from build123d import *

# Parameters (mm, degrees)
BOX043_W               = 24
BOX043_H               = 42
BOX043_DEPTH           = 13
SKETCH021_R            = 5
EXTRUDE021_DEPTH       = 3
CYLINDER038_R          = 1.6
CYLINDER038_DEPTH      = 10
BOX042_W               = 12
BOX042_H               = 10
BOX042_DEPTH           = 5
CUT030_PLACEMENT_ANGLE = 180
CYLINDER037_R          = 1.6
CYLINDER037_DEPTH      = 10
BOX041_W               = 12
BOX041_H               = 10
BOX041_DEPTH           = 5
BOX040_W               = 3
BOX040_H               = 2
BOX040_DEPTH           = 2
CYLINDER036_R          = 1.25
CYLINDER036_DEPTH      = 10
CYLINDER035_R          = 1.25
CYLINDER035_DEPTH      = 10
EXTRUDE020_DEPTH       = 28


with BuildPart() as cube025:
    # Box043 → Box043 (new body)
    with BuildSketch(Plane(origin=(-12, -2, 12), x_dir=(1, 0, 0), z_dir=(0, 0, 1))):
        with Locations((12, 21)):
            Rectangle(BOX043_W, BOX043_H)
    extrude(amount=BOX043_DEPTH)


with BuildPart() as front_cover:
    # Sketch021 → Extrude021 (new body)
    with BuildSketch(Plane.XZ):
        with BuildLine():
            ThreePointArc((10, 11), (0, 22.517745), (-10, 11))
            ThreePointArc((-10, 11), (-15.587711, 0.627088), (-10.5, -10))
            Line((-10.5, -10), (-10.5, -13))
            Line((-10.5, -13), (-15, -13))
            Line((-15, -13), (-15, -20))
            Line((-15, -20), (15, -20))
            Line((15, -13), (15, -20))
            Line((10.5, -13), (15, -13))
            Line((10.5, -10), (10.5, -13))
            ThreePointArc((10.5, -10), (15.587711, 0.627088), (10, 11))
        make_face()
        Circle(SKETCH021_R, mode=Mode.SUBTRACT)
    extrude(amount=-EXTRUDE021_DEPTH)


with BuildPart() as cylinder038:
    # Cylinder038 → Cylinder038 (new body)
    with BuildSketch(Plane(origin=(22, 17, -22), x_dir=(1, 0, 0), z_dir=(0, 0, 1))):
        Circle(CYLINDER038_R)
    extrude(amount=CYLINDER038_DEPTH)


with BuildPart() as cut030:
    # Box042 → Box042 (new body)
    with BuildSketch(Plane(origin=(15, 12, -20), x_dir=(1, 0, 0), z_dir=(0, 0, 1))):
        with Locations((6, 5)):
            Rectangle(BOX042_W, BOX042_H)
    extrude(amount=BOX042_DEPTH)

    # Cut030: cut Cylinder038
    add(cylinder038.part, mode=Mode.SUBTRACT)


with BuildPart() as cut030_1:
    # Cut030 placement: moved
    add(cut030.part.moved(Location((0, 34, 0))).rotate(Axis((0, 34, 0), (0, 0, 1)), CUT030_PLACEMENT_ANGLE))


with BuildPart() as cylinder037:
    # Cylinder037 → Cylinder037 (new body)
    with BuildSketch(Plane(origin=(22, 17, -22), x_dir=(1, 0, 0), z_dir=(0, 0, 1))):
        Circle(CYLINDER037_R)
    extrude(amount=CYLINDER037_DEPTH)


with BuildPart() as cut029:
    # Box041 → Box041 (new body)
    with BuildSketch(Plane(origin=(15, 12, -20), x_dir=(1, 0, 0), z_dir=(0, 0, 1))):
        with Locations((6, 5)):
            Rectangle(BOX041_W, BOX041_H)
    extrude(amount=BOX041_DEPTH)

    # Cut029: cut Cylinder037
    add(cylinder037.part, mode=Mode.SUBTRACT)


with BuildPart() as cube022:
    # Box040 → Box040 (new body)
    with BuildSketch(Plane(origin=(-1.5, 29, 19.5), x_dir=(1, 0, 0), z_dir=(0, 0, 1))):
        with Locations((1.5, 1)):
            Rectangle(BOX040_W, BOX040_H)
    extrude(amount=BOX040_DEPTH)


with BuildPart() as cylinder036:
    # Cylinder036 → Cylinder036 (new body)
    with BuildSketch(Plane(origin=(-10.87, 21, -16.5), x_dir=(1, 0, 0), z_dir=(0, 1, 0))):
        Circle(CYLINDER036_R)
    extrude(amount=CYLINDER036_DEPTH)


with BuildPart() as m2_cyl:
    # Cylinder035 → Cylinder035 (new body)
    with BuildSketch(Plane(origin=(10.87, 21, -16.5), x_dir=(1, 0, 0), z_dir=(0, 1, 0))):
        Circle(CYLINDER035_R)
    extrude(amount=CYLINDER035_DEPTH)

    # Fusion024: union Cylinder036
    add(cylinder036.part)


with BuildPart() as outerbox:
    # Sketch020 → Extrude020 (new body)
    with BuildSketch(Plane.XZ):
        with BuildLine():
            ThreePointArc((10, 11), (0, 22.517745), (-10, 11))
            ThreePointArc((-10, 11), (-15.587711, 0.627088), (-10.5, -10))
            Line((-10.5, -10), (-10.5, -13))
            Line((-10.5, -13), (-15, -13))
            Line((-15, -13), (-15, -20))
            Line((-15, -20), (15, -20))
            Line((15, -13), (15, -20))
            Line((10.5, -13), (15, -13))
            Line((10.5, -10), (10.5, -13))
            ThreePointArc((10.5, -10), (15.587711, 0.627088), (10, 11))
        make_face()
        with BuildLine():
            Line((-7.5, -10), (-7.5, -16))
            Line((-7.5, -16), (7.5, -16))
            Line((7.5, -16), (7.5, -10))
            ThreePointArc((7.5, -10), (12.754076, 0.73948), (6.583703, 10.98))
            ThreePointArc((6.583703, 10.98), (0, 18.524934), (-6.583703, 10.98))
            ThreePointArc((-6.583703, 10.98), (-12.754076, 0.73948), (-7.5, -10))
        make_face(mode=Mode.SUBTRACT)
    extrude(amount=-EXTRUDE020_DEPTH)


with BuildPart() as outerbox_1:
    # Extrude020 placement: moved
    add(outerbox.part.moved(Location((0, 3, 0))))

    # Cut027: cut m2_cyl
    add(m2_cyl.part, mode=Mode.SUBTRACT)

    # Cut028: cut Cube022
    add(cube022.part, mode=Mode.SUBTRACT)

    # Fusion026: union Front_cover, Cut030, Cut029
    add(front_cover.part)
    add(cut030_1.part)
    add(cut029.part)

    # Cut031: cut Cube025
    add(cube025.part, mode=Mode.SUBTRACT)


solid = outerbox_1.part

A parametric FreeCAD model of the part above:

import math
import FreeCAD as App
import Part
import Sketcher

doc = App.newDocument("Part")
params = doc.addObject("Spreadsheet::Sheet", "Params")
for row, (alias, value) in enumerate([
    ("sketch1_width", "24 mm"),
    ("sketch1_height", "42 mm"),
    ("pad1_length", "13 mm"),
    ("sketch2_diameter", "10 mm"),
    ("sketch2_radius", "12.999999 mm"),
    ("sketch2_radius2", "10.1 mm"),
    ("sketch2_width", "30 mm"),
    ("sketch2_height", "3 mm"),
    ("pad2_length", "3 mm"),
    ("sketch3_diameter", "3.2 mm"),
    ("pad3_length", "10 mm"),
    ("sketch4_width", "12 mm"),
    ("sketch4_height", "10 mm"),
    ("pad4_length", "5 mm"),
    ("sketch5_diameter", "3.2 mm"),
    ("pad5_length", "10 mm"),
    ("sketch6_width", "12 mm"),
    ("sketch6_height", "10 mm"),
    ("pad6_length", "5 mm"),
    ("sketch7_width", "3 mm"),
    ("sketch7_height", "2 mm"),
    ("pad7_length", "2 mm"),
    ("sketch8_diameter", "2.5 mm"),
    ("pad8_length", "10 mm"),
    ("sketch9_diameter", "2.5 mm"),
    ("pad9_length", "10 mm"),
    ("sketch10_radius", "12.999999 mm"),
    ("sketch10_radius2", "10.1 mm"),
    ("sketch10_radius3", "12.5 mm"),
    ("sketch10_width", "30 mm"),
    ("sketch10_width2", "15 mm"),
    ("pad10_length", "28 mm"),
], start=1):
    params.set(f"A{row}", alias)
    params.set(f"B{row}", "=" + value)
    params.setAlias(f"B{row}", alias)

body = doc.addObject("PartDesign::Body", "Body")

sketch1 = doc.addObject("Sketcher::SketchObject", "Sketch")
body.addObject(sketch1)
sketch1.AttachmentSupport = (doc.XY_Plane, [""])
sketch1.MapMode = "FlatFace"
sketch1.AttachmentOffset = App.Placement(App.Vector(0, 0, 12), App.Rotation())
sketch1.addGeometry([
    Part.LineSegment(App.Vector(-12, 40, 0), App.Vector(-12, -2, 0)),
    Part.LineSegment(App.Vector(-12, -2, 0), App.Vector(12, -2, 0)),
    Part.LineSegment(App.Vector(12, -2, 0), App.Vector(12, 40, 0)),
    Part.LineSegment(App.Vector(12, 40, 0), App.Vector(-12, 40, 0)),
], False)
sketch1.addConstraint([
    Sketcher.Constraint("Coincident", 0, 2, 1, 1),
    Sketcher.Constraint("Coincident", 1, 2, 2, 1),
    Sketcher.Constraint("Coincident", 2, 2, 3, 1),
    Sketcher.Constraint("Coincident", 3, 2, 0, 1),
    Sketcher.Constraint("Vertical", 0),
    Sketcher.Constraint("Horizontal", 1),
    Sketcher.Constraint("Vertical", 2),
    Sketcher.Constraint("Horizontal", 3),
    Sketcher.Constraint("DistanceX", 1, 1, 1, 2, 24.0),
    Sketcher.Constraint("DistanceY", 0, 2, 0, 1, 42.0),
    Sketcher.Constraint("DistanceX", 0, 2, -1, 1, 12.0),
    Sketcher.Constraint("DistanceY", 0, 2, -1, 1, 2.0),
])
sketch1.setExpression("Constraints[8]", "Params.sketch1_width")
sketch1.setExpression("Constraints[9]", "Params.sketch1_height")
pad1 = doc.addObject("PartDesign::Pad", "Pad")
body.addObject(pad1)
pad1.Profile = sketch1
pad1.setExpression("Length", "Params.pad1_length")
body2 = doc.addObject("PartDesign::Body", "Body001")

sketch2 = doc.addObject("Sketcher::SketchObject", "Sketch001")
body2.addObject(sketch2)
sketch2.AttachmentSupport = (doc.getObject("XZ_Plane001"), [""])
sketch2.MapMode = "FlatFace"
sketch2.addGeometry([
    Part.ArcOfCircle(Part.Circle(App.Vector(0, 12.417745, 0), App.Vector(0, 0, 1), 10.1), math.radians(-8.069303), math.radians(188.069303)),
    Part.ArcOfCircle(Part.Circle(App.Vector(-2.591395, 0.317652, 0), App.Vector(0, 0, 1), 12.999999), math.radians(124.742746), math.radians(232.529399)),
    Part.LineSegment(App.Vector(-10.5, -10, 0), App.Vector(-10.5, -13, 0)),
    Part.LineSegment(App.Vector(-10.5, -13, 0), App.Vector(-15, -13, 0)),
    Part.LineSegment(App.Vector(-15, -13, 0), App.Vector(-15, -20, 0)),
    Part.LineSegment(App.Vector(-15, -20, 0), App.Vector(15, -20, 0)),
    Part.LineSegment(App.Vector(15, -20, 0), App.Vector(15, -13, 0)),
    Part.LineSegment(App.Vector(15, -13, 0), App.Vector(10.5, -13, 0)),
    Part.LineSegment(App.Vector(10.5, -13, 0), App.Vector(10.5, -10, 0)),
    Part.ArcOfCircle(Part.Circle(App.Vector(2.591395, 0.317652, 0), App.Vector(0, 0, 1), 12.999999), math.radians(-52.529399), math.radians(55.257254)),
    Part.Circle(App.Vector(0, 0, 0), App.Vector(0, 0, 1), 5),
], False)
sketch2.addConstraint([
    Sketcher.Constraint("Coincident", 0, 2, 1, 1),
    Sketcher.Constraint("Coincident", 1, 2, 2, 1),
    Sketcher.Constraint("Coincident", 2, 2, 3, 1),
    Sketcher.Constraint("Coincident", 3, 2, 4, 1),
    Sketcher.Constraint("Coincident", 4, 2, 5, 1),
    Sketcher.Constraint("Coincident", 5, 2, 6, 1),
    Sketcher.Constraint("Coincident", 6, 2, 7, 1),
    Sketcher.Constraint("Coincident", 7, 2, 8, 1),
    Sketcher.Constraint("Coincident", 8, 2, 9, 1),
    Sketcher.Constraint("Coincident", 9, 2, 0, 1),
    Sketcher.Constraint("Vertical", 2),
    Sketcher.Constraint("Horizontal", 3),
    Sketcher.Constraint("Vertical", 4),
    Sketcher.Constraint("Horizontal", 5),
    Sketcher.Constraint("Vertical", 6),
    Sketcher.Constraint("Horizontal", 7),
    Sketcher.Constraint("Vertical", 8),
    Sketcher.Constraint("Coincident", 10, 3, -1, 1),
    Sketcher.Constraint("Equal", 1, 9),
    Sketcher.Constraint("Symmetric", 1, 3, 9, 3, -2),
    Sketcher.Constraint("Symmetric", 3, 2, 6, 2, -2),
    Sketcher.Constraint("PointOnObject", 0, 3, -2),
    Sketcher.Constraint("Horizontal", 1, 2, 8, 2),
    Sketcher.Constraint("Diameter", 10, 10.0),
    Sketcher.Constraint("Radius", 1, 12.999999),
    Sketcher.Constraint("Radius", 0, 10.1),
    Sketcher.Constraint("DistanceX", 5, 1, 5, 2, 30.0),
    Sketcher.Constraint("DistanceY", 2, 2, 2, 1, 3.0),
    Sketcher.Constraint("DistanceY", 4, 2, 4, 1, 7.0),
    Sketcher.Constraint("DistanceX", 3, 2, 3, 1, 4.5),
    Sketcher.Constraint("DistanceX", 0, 2, -1, 1, 10.0),
    Sketcher.Constraint("DistanceY", -1, 1, 0, 2, 11.0),
    Sketcher.Constraint("DistanceY", 1, 2, -1, 1, 10.0),
])
sketch2.setExpression("Constraints[23]", "Params.sketch2_diameter")
sketch2.setExpression("Constraints[24]", "Params.sketch2_radius")
sketch2.setExpression("Constraints[25]", "Params.sketch2_radius2")
sketch2.setExpression("Constraints[26]", "Params.sketch2_width")
sketch2.setExpression("Constraints[27]", "Params.sketch2_height")
pad2 = doc.addObject("PartDesign::Pad", "Pad001")
body2.addObject(pad2)
pad2.Profile = sketch2
pad2.setExpression("Length", "Params.pad2_length")
pad2.Reversed = True
body3 = doc.addObject("PartDesign::Body", "Body002")

sketch3 = doc.addObject("Sketcher::SketchObject", "Sketch002")
body3.addObject(sketch3)
sketch3.AttachmentSupport = (doc.getObject("XY_Plane002"), [""])
sketch3.MapMode = "FlatFace"
sketch3.AttachmentOffset = App.Placement(App.Vector(0, 0, -22), App.Rotation())
sketch3.addGeometry(Part.Circle(App.Vector(22, 17, 0), App.Vector(0, 0, 1), 1.6), False)
sketch3.addConstraint([
    Sketcher.Constraint("Diameter", 0, 3.2),
    Sketcher.Constraint("DistanceX", -1, 1, 0, 3, 22.0),
    Sketcher.Constraint("DistanceY", -1, 1, 0, 3, 17.0),
])
sketch3.setExpression("Constraints[0]", "Params.sketch3_diameter")
pad3 = doc.addObject("PartDesign::Pad", "Pad002")
body3.addObject(pad3)
pad3.Profile = sketch3
pad3.setExpression("Length", "Params.pad3_length")
body4 = doc.addObject("PartDesign::Body", "Body003")

sketch4 = doc.addObject("Sketcher::SketchObject", "Sketch003")
body4.addObject(sketch4)
sketch4.AttachmentSupport = (doc.getObject("XY_Plane003"), [""])
sketch4.MapMode = "FlatFace"
sketch4.AttachmentOffset = App.Placement(App.Vector(0, 0, -20), App.Rotation())
sketch4.addGeometry([
    Part.LineSegment(App.Vector(15, 22, 0), App.Vector(15, 12, 0)),
    Part.LineSegment(App.Vector(15, 12, 0), App.Vector(27, 12, 0)),
    Part.LineSegment(App.Vector(27, 12, 0), App.Vector(27, 22, 0)),
    Part.LineSegment(App.Vector(27, 22, 0), App.Vector(15, 22, 0)),
], False)
sketch4.addConstraint([
    Sketcher.Constraint("Coincident", 0, 2, 1, 1),
    Sketcher.Constraint("Coincident", 1, 2, 2, 1),
    Sketcher.Constraint("Coincident", 2, 2, 3, 1),
    Sketcher.Constraint("Coincident", 3, 2, 0, 1),
    Sketcher.Constraint("Vertical", 0),
    Sketcher.Constraint("Horizontal", 1),
    Sketcher.Constraint("Vertical", 2),
    Sketcher.Constraint("Horizontal", 3),
    Sketcher.Constraint("DistanceX", 1, 1, 1, 2, 12.0),
    Sketcher.Constraint("DistanceY", 0, 2, 0, 1, 10.0),
    Sketcher.Constraint("DistanceX", -1, 1, 0, 2, 15.0),
    Sketcher.Constraint("DistanceY", -1, 1, 0, 2, 12.0),
])
sketch4.setExpression("Constraints[8]", "Params.sketch4_width")
sketch4.setExpression("Constraints[9]", "Params.sketch4_height")
pad4 = doc.addObject("PartDesign::Pad", "Pad003")
body4.addObject(pad4)
pad4.Profile = sketch4
pad4.setExpression("Length", "Params.pad4_length")
doc.recompute()

boolean = doc.addObject("PartDesign::Boolean", "Boolean")
body4.addObject(boolean)
boolean.Type = "Cut"
boolean.addObjects([body3])
body5 = doc.addObject("PartDesign::Body", "Body004")
doc.recompute()

body4.Placement = App.Placement(App.Vector(0, 34, 0), App.Rotation(App.Vector(0, 0, 1), 180))
boolean2 = doc.addObject("PartDesign::Boolean", "Boolean001")
body5.addObject(boolean2)
boolean2.Type = "Fuse"
boolean2.addObjects([body4])
body6 = doc.addObject("PartDesign::Body", "Body005")

sketch5 = doc.addObject("Sketcher::SketchObject", "Sketch004")
body6.addObject(sketch5)
sketch5.AttachmentSupport = (doc.getObject("XY_Plane005"), [""])
sketch5.MapMode = "FlatFace"
sketch5.AttachmentOffset = App.Placement(App.Vector(0, 0, -22), App.Rotation())
sketch5.addGeometry(Part.Circle(App.Vector(22, 17, 0), App.Vector(0, 0, 1), 1.6), False)
sketch5.addConstraint([
    Sketcher.Constraint("Diameter", 0, 3.2),
    Sketcher.Constraint("DistanceX", -1, 1, 0, 3, 22.0),
    Sketcher.Constraint("DistanceY", -1, 1, 0, 3, 17.0),
])
sketch5.setExpression("Constraints[0]", "Params.sketch5_diameter")
pad5 = doc.addObject("PartDesign::Pad", "Pad004")
body6.addObject(pad5)
pad5.Profile = sketch5
pad5.setExpression("Length", "Params.pad5_length")
body7 = doc.addObject("PartDesign::Body", "Body006")

sketch6 = doc.addObject("Sketcher::SketchObject", "Sketch005")
body7.addObject(sketch6)
sketch6.AttachmentSupport = (doc.getObject("XY_Plane006"), [""])
sketch6.MapMode = "FlatFace"
sketch6.AttachmentOffset = App.Placement(App.Vector(0, 0, -20), App.Rotation())
sketch6.addGeometry([
    Part.LineSegment(App.Vector(15, 22, 0), App.Vector(15, 12, 0)),
    Part.LineSegment(App.Vector(15, 12, 0), App.Vector(27, 12, 0)),
    Part.LineSegment(App.Vector(27, 12, 0), App.Vector(27, 22, 0)),
    Part.LineSegment(App.Vector(27, 22, 0), App.Vector(15, 22, 0)),
], False)
sketch6.addConstraint([
    Sketcher.Constraint("Coincident", 0, 2, 1, 1),
    Sketcher.Constraint("Coincident", 1, 2, 2, 1),
    Sketcher.Constraint("Coincident", 2, 2, 3, 1),
    Sketcher.Constraint("Coincident", 3, 2, 0, 1),
    Sketcher.Constraint("Vertical", 0),
    Sketcher.Constraint("Horizontal", 1),
    Sketcher.Constraint("Vertical", 2),
    Sketcher.Constraint("Horizontal", 3),
    Sketcher.Constraint("DistanceX", 1, 1, 1, 2, 12.0),
    Sketcher.Constraint("DistanceY", 0, 2, 0, 1, 10.0),
    Sketcher.Constraint("DistanceX", -1, 1, 0, 2, 15.0),
    Sketcher.Constraint("DistanceY", -1, 1, 0, 2, 12.0),
])
sketch6.setExpression("Constraints[8]", "Params.sketch6_width")
sketch6.setExpression("Constraints[9]", "Params.sketch6_height")
pad6 = doc.addObject("PartDesign::Pad", "Pad005")
body7.addObject(pad6)
pad6.Profile = sketch6
pad6.setExpression("Length", "Params.pad6_length")
doc.recompute()

boolean3 = doc.addObject("PartDesign::Boolean", "Boolean002")
body7.addObject(boolean3)
boolean3.Type = "Cut"
boolean3.addObjects([body6])
body8 = doc.addObject("PartDesign::Body", "Body007")

sketch7 = doc.addObject("Sketcher::SketchObject", "Sketch006")
body8.addObject(sketch7)
sketch7.AttachmentSupport = (doc.getObject("XY_Plane007"), [""])
sketch7.MapMode = "FlatFace"
sketch7.AttachmentOffset = App.Placement(App.Vector(0, 0, 19.5), App.Rotation())
sketch7.addGeometry([
    Part.LineSegment(App.Vector(-1.5, 31, 0), App.Vector(-1.5, 29, 0)),
    Part.LineSegment(App.Vector(-1.5, 29, 0), App.Vector(1.5, 29, 0)),
    Part.LineSegment(App.Vector(1.5, 29, 0), App.Vector(1.5, 31, 0)),
    Part.LineSegment(App.Vector(1.5, 31, 0), App.Vector(-1.5, 31, 0)),
], False)
sketch7.addConstraint([
    Sketcher.Constraint("Coincident", 0, 2, 1, 1),
    Sketcher.Constraint("Coincident", 1, 2, 2, 1),
    Sketcher.Constraint("Coincident", 2, 2, 3, 1),
    Sketcher.Constraint("Coincident", 3, 2, 0, 1),
    Sketcher.Constraint("Vertical", 0),
    Sketcher.Constraint("Horizontal", 1),
    Sketcher.Constraint("Vertical", 2),
    Sketcher.Constraint("Horizontal", 3),
    Sketcher.Constraint("DistanceX", 1, 1, 1, 2, 3.0),
    Sketcher.Constraint("DistanceY", 0, 2, 0, 1, 2.0),
    Sketcher.Constraint("DistanceY", -1, 1, 0, 2, 29.0),
    Sketcher.Constraint("DistanceX", 0, 2, -1, 1, 1.5),
])
sketch7.setExpression("Constraints[8]", "Params.sketch7_width")
sketch7.setExpression("Constraints[9]", "Params.sketch7_height")
pad7 = doc.addObject("PartDesign::Pad", "Pad006")
body8.addObject(pad7)
pad7.Profile = sketch7
pad7.setExpression("Length", "Params.pad7_length")
body9 = doc.addObject("PartDesign::Body", "Body008")

sketch8 = doc.addObject("Sketcher::SketchObject", "Sketch007")
body9.addObject(sketch8)
sketch8.AttachmentSupport = (doc.getObject("XZ_Plane008"), [""])
sketch8.MapMode = "FlatFace"
sketch8.AttachmentOffset = App.Placement(App.Vector(0, 0, -21), App.Rotation())
sketch8.addGeometry(Part.Circle(App.Vector(-10.87, -16.5, 0), App.Vector(0, 0, 1), 1.25), False)
sketch8.addConstraint([
    Sketcher.Constraint("Diameter", 0, 2.5),
    Sketcher.Constraint("DistanceY", 0, 3, -1, 1, 16.5),
    Sketcher.Constraint("DistanceX", 0, 3, -1, 1, 10.87),
])
sketch8.setExpression("Constraints[0]", "Params.sketch8_diameter")
pad8 = doc.addObject("PartDesign::Pad", "Pad007")
body9.addObject(pad8)
pad8.Profile = sketch8
pad8.setExpression("Length", "Params.pad8_length")
pad8.Reversed = True
body10 = doc.addObject("PartDesign::Body", "Body009")
body10.AllowCompound = True

sketch9 = doc.addObject("Sketcher::SketchObject", "Sketch008")
body10.addObject(sketch9)
sketch9.AttachmentSupport = (doc.getObject("XZ_Plane009"), [""])
sketch9.MapMode = "FlatFace"
sketch9.AttachmentOffset = App.Placement(App.Vector(0, 0, -21), App.Rotation())
sketch9.addGeometry(Part.Circle(App.Vector(10.87, -16.5, 0), App.Vector(0, 0, 1), 1.25), False)
sketch9.addConstraint([
    Sketcher.Constraint("Diameter", 0, 2.5),
    Sketcher.Constraint("DistanceY", 0, 3, -1, 1, 16.5),
    Sketcher.Constraint("DistanceX", -1, 1, 0, 3, 10.87),
])
sketch9.setExpression("Constraints[0]", "Params.sketch9_diameter")
pad9 = doc.addObject("PartDesign::Pad", "Pad008")
body10.addObject(pad9)
pad9.Profile = sketch9
pad9.setExpression("Length", "Params.pad9_length")
pad9.Reversed = True
doc.recompute()

boolean4 = doc.addObject("PartDesign::Boolean", "Boolean003")
body10.addObject(boolean4)
boolean4.Type = "Fuse"
boolean4.addObjects([body9])
body11 = doc.addObject("PartDesign::Body", "Body010")

sketch10 = doc.addObject("Sketcher::SketchObject", "Sketch009")
body11.addObject(sketch10)
sketch10.AttachmentSupport = (doc.getObject("XZ_Plane010"), [""])
sketch10.MapMode = "FlatFace"
sketch10.addGeometry([
    Part.ArcOfCircle(Part.Circle(App.Vector(0, 12.417745, 0), App.Vector(0, 0, 1), 10.1), math.radians(-8.069303), math.radians(188.069303)),
    Part.ArcOfCircle(Part.Circle(App.Vector(-2.591395, 0.317652, 0), App.Vector(0, 0, 1), 12.999999), math.radians(124.742746), math.radians(232.529399)),
    Part.LineSegment(App.Vector(-10.5, -10, 0), App.Vector(-10.5, -13, 0)),
    Part.LineSegment(App.Vector(-10.5, -13, 0), App.Vector(-15, -13, 0)),
    Part.LineSegment(App.Vector(-15, -13, 0), App.Vector(-15, -20, 0)),
    Part.LineSegment(App.Vector(-15, -20, 0), App.Vector(15, -20, 0)),
    Part.LineSegment(App.Vector(15, -20, 0), App.Vector(15, -13, 0)),
    Part.LineSegment(App.Vector(15, -13, 0), App.Vector(10.5, -13, 0)),
    Part.LineSegment(App.Vector(10.5, -13, 0), App.Vector(10.5, -10, 0)),
    Part.ArcOfCircle(Part.Circle(App.Vector(2.591395, 0.317652, 0), App.Vector(0, 0, 1), 12.999999), math.radians(-52.529399), math.radians(55.257254)),
    Part.LineSegment(App.Vector(-7.5, -16, 0), App.Vector(-7.5, -10, 0)),
    Part.ArcOfCircle(Part.Circle(App.Vector(-0.265981, 0.194065, 0), App.Vector(0, 0, 1), 12.5), math.radians(120.35909), math.radians(234.639327)),
    Part.ArcOfCircle(Part.Circle(App.Vector(0, 11.88, 0), App.Vector(0, 0, 1), 6.644934), math.radians(-7.784154), math.radians(187.784154)),
    Part.ArcOfCircle(Part.Circle(App.Vector(0.265981, 0.194065, 0), App.Vector(0, 0, 1), 12.5), math.radians(-54.639327), math.radians(59.64091)),
    Part.LineSegment(App.Vector(7.5, -10, 0), App.Vector(7.5, -16, 0)),
    Part.LineSegment(App.Vector(7.5, -16, 0), App.Vector(-7.5, -16, 0)),
], False)
sketch10.addConstraint([
    Sketcher.Constraint("Coincident", 0, 2, 1, 1),
    Sketcher.Constraint("Coincident", 1, 2, 2, 1),
    Sketcher.Constraint("Coincident", 2, 2, 3, 1),
    Sketcher.Constraint("Coincident", 3, 2, 4, 1),
    Sketcher.Constraint("Coincident", 4, 2, 5, 1),
    Sketcher.Constraint("Coincident", 5, 2, 6, 1),
    Sketcher.Constraint("Coincident", 6, 2, 7, 1),
    Sketcher.Constraint("Coincident", 7, 2, 8, 1),
    Sketcher.Constraint("Coincident", 8, 2, 9, 1),
    Sketcher.Constraint("Coincident", 9, 2, 0, 1),
    Sketcher.Constraint("Coincident", 10, 2, 11, 2),
    Sketcher.Constraint("Coincident", 11, 1, 12, 2),
    Sketcher.Constraint("Coincident", 12, 1, 13, 2),
    Sketcher.Constraint("Coincident", 13, 1, 14, 1),
    Sketcher.Constraint("Coincident", 14, 2, 15, 1),
    Sketcher.Constraint("Coincident", 15, 2, 10, 1),
    Sketcher.Constraint("Vertical", 2),
    Sketcher.Constraint("Horizontal", 3),
    Sketcher.Constraint("Vertical", 4),
    Sketcher.Constraint("Horizontal", 5),
    Sketcher.Constraint("Vertical", 6),
    Sketcher.Constraint("Horizontal", 7),
    Sketcher.Constraint("Vertical", 8),
    Sketcher.Constraint("Vertical", 10),
    Sketcher.Constraint("Vertical", 14),
    Sketcher.Constraint("Horizontal", 15),
    Sketcher.Constraint("Equal", 1, 9),
    Sketcher.Constraint("Equal", 11, 13),
    Sketcher.Constraint("Symmetric", 1, 3, 9, 3, -2),
    Sketcher.Constraint("Symmetric", 11, 3, 13, 3, -2),
    Sketcher.Constraint("Symmetric", 3, 2, 6, 2, -2),
    Sketcher.Constraint("PointOnObject", 0, 3, -2),
    Sketcher.Constraint("PointOnObject", 12, 3, -2),
    Sketcher.Constraint("Horizontal", 1, 2, 8, 2),
    Sketcher.Constraint("Horizontal", 8, 2, 10, 2),
    Sketcher.Constraint("Horizontal", 10, 2, 13, 1),
    Sketcher.Constraint("Radius", 1, 12.999999),
    Sketcher.Constraint("Radius", 0, 10.1),
    Sketcher.Constraint("Radius", 11, 12.5),
    Sketcher.Constraint("DistanceX", 5, 1, 5, 2, 30.0),
    Sketcher.Constraint("DistanceX", 15, 2, 15, 1, 15.0),
    Sketcher.Constraint("DistanceY", 2, 2, 2, 1, 3.0),
    Sketcher.Constraint("DistanceY", 4, 2, 4, 1, 7.0),
    Sketcher.Constraint("DistanceY", 10, 1, 10, 2, 6.0),
    Sketcher.Constraint("DistanceX", 3, 2, 3, 1, 4.5),
    Sketcher.Constraint("DistanceX", 0, 2, -1, 1, 10.0),
    Sketcher.Constraint("DistanceY", -1, 1, 0, 2, 11.0),
    Sketcher.Constraint("DistanceY", 1, 2, -1, 1, 10.0),
    Sketcher.Constraint("DistanceY", 11, 1, 12, 3, 0.9),
    Sketcher.Constraint("DistanceY", -1, 1, 12, 3, 11.88),
    Sketcher.Constraint("Radius", 12, 6.644934),
])
sketch10.setExpression("Constraints[36]", "Params.sketch10_radius")
sketch10.setExpression("Constraints[37]", "Params.sketch10_radius2")
sketch10.setExpression("Constraints[38]", "Params.sketch10_radius3")
sketch10.setExpression("Constraints[39]", "Params.sketch10_width")
sketch10.setExpression("Constraints[40]", "Params.sketch10_width2")
pad10 = doc.addObject("PartDesign::Pad", "Pad009")
body11.addObject(pad10)
pad10.Profile = sketch10
pad10.setExpression("Length", "Params.pad10_length")
pad10.Reversed = True
body12 = doc.addObject("PartDesign::Body", "Body011")
doc.recompute()

body11.Placement = App.Placement(App.Vector(0, 3, 0), App.Rotation(App.Vector(0, 0, 1), 0))
boolean5 = doc.addObject("PartDesign::Boolean", "Boolean004")
body12.addObject(boolean5)
boolean5.Type = "Fuse"
boolean5.addObjects([body11])
doc.recompute()

boolean6 = doc.addObject("PartDesign::Boolean", "Boolean005")
body12.addObject(boolean6)
boolean6.Type = "Cut"
boolean6.addObjects([body10])
doc.recompute()

boolean7 = doc.addObject("PartDesign::Boolean", "Boolean006")
body12.addObject(boolean7)
boolean7.Type = "Cut"
boolean7.addObjects([body8])
doc.recompute()

boolean8 = doc.addObject("PartDesign::Boolean", "Boolean007")
body12.addObject(boolean8)
boolean8.Type = "Fuse"
boolean8.addObjects([body2])
doc.recompute()

boolean9 = doc.addObject("PartDesign::Boolean", "Boolean008")
body12.addObject(boolean9)
boolean9.Type = "Fuse"
boolean9.addObjects([body5])
doc.recompute()

boolean10 = doc.addObject("PartDesign::Boolean", "Boolean009")
body12.addObject(boolean10)
boolean10.Type = "Fuse"
boolean10.addObjects([body7])
doc.recompute()

boolean11 = doc.addObject("PartDesign::Boolean", "Boolean010")
body12.addObject(boolean11)
boolean11.Type = "Cut"
boolean11.addObjects([body])

doc.recompute()
